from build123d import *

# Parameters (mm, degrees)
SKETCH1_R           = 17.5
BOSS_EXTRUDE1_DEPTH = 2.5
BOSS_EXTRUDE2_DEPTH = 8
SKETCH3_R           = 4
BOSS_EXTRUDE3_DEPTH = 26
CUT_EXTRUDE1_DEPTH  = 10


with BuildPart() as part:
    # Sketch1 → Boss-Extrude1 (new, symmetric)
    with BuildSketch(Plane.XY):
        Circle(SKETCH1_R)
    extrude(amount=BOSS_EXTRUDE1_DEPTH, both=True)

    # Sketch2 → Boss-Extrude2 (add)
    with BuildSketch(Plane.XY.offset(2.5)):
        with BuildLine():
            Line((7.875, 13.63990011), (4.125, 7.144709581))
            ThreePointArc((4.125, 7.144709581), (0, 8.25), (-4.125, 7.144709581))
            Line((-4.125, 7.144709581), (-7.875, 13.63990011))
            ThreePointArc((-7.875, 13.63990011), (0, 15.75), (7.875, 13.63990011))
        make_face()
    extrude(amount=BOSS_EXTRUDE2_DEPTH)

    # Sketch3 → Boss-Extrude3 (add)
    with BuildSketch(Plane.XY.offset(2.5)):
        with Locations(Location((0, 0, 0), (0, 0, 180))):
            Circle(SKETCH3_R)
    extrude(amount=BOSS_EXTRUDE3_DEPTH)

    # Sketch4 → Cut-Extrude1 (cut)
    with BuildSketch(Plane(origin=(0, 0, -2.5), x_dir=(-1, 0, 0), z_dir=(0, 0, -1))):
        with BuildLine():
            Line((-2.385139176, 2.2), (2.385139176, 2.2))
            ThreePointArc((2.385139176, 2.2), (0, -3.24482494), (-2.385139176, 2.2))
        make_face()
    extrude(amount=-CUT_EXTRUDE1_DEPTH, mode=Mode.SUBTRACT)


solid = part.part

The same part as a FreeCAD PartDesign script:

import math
import FreeCAD as App
import Part
import Sketcher
Q = App.Units.Quantity

doc = App.newDocument("Part")
params = doc.addObject("Spreadsheet::Sheet", "Params")
for row, (alias, value) in enumerate([
    ("sketch1_diameter", "35 mm"),
    ("pad1_length", "5 mm"),
    ("sketch2_radius", "15.75 mm"),
    ("sketch2_radius2", "8.25 mm"),
    ("pad2_length", "8 mm"),
    ("sketch3_diameter", "8 mm"),
    ("pad3_length", "26 mm"),
    ("pocket1_length", "10 mm"),
], start=1):
    params.set(f"A{row}", alias)
    params.set(f"B{row}", "=" + value)
    params.setAlias(f"B{row}", alias)

body = doc.addObject("PartDesign::Body", "Body")

# Sketch on XY plane
sketch1 = body.newObject("Sketcher::SketchObject", "Sketch")
sketch1.AttachmentSupport = (doc.getObject("XY_Plane"), [""])
sketch1.MapMode = "FlatFace"
sketch1.addGeometry(Part.Circle(App.Vector(0, 0, 0), App.Vector(0, 0, 1), 18), False)
sketch1.addConstraint([
    Sketcher.Constraint("Coincident", 0, 3, -1, 1),
    Sketcher.Constraint("Diameter", 0, 35.0),
])
sketch1.setExpression("Constraints[1]", "Params.sketch1_diameter")
pad1 = body.newObject("PartDesign::Pad", "Pad")
pad1.Profile = sketch1
pad1.setExpression("Length", "Params.pad1_length")
pad1.Midplane = True

# Sketch on XY plane
sketch2 = body.newObject("Sketcher::SketchObject", "Sketch001")
sketch2.AttachmentSupport = (doc.getObject("XY_Plane"), [""])
sketch2.MapMode = "FlatFace"
sketch2.AttachmentOffset = App.Placement(App.Vector(0, 0, 2.5), App.Rotation())
sketch2.addGeometry([
    Part.LineSegment(App.Vector(4, 7, 0), App.Vector(8, 14, 0)),
    Part.ArcOfCircle(Part.Circle(App.Vector(0, 0, 0), App.Vector(0, 0, 1), 16), math.radians(60), math.radians(120)),
    Part.LineSegment(App.Vector(-8, 14, 0), App.Vector(-4, 7, 0)),
    Part.ArcOfCircle(Part.Circle(App.Vector(0, 0, 0), App.Vector(0, 0, 1), 8), math.radians(60), math.radians(120)),
], False)
sketch2.addConstraint([
    Sketcher.Constraint("Coincident", 0, 2, 1, 1),
    Sketcher.Constraint("Coincident", 1, 2, 2, 1),
    Sketcher.Constraint("Coincident", 2, 2, 3, 2),
    Sketcher.Constraint("Coincident", 3, 1, 0, 1),
    Sketcher.Constraint("Coincident", 1, 3, -1, 1),
    Sketcher.Constraint("Coincident", 3, 3, -1, 1),
    Sketcher.Constraint("Horizontal", 0, 2, 1, 2),
    Sketcher.Constraint("Horizontal", 2, 2, 3, 1),
    Sketcher.Constraint("Angle", 0, Q("60 deg")),
    Sketcher.Constraint("Radius", 1, 15.75),
    Sketcher.Constraint("Radius", 3, 8.25),
    Sketcher.Constraint("DistanceX", 2, 2, 0, 2, 12.0),
])
sketch2.setExpression("Constraints[9]", "Params.sketch2_radius")
sketch2.setExpression("Constraints[10]", "Params.sketch2_radius2")
pad2 = body.newObject("PartDesign::Pad", "Pad001")
pad2.Profile = sketch2
pad2.setExpression("Length", "Params.pad2_length")

# Sketch on XY plane
sketch3 = body.newObject("Sketcher::SketchObject", "Sketch002")
sketch3.AttachmentSupport = (doc.getObject("XY_Plane"), [""])
sketch3.MapMode = "FlatFace"
sketch3.AttachmentOffset = App.Placement(App.Vector(0, 0, 2.5), App.Rotation())
sketch3.addGeometry(Part.Circle(App.Vector(0, 0, 0), App.Vector(0, 0, 1), 4), False)
sketch3.addConstraint([
    Sketcher.Constraint("Coincident", 0, 3, -1, 1),
    Sketcher.Constraint("Diameter", 0, 8.0),
])
sketch3.setExpression("Constraints[1]", "Params.sketch3_diameter")
pad3 = body.newObject("PartDesign::Pad", "Pad002")
pad3.Profile = sketch3
pad3.setExpression("Length", "Params.pad3_length")

# Sketch on XY plane
sketch4 = body.newObject("Sketcher::SketchObject", "Sketch003")
sketch4.AttachmentSupport = (doc.getObject("XY_Plane"), [""])
sketch4.MapMode = "FlatFace"
sketch4.AttachmentOffset = App.Placement(App.Vector(0, 0, -2.5), App.Rotation())
sketch4.addGeometry([
    Part.LineSegment(App.Vector(-2.4, 2.2, 0), App.Vector(2.4, 2.2, 0)),
    Part.ArcOfCircle(Part.Circle(App.Vector(0, 0, 0), App.Vector(0, 0, 1), 3.2), math.radians(137), math.radians(403)),
], False)
sketch4.addConstraint([
    Sketcher.Constraint("Coincident", 0, 1, 1, 1),
    Sketcher.Constraint("Coincident", 1, 2, 0, 2),
    Sketcher.Constraint("Horizontal", 0),
    Sketcher.Constraint("Coincident", 1, 3, -1, 1),
    Sketcher.Constraint("DistanceY", -1, 1, 0, 1, 2.2),
    Sketcher.Constraint("Radius", 1, 3.244825),
])
pocket1 = body.newObject("PartDesign::Pocket", "Pocket")
pocket1.Profile = sketch4
pocket1.setExpression("Length", "Params.pocket1_length")
pocket1.Reversed = True

doc.recompute()
